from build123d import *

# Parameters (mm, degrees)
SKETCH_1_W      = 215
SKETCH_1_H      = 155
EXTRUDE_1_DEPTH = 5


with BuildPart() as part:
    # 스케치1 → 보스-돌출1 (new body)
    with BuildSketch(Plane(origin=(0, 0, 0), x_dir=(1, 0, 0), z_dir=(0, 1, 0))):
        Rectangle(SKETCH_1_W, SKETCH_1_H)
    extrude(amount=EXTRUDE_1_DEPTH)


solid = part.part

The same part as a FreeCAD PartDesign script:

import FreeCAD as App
import Part
import Sketcher

V = App.Vector
Q = App.Units.Quantity


def add_polygon(sketch, points):
    """Adds a closed chain of lines whose ends are joined by coincident constraints."""
    first, n = sketch.GeometryCount, len(points)
    for a, b in zip(points, points[1:] + points[:1]):
        sketch.addGeometry(Part.LineSegment(App.Vector(*a, 0), App.Vector(*b, 0)), False)
    for i in range(n):
        sketch.addConstraint(Sketcher.Constraint("Coincident", first + i, 2, first + (i + 1) % n, 1))

doc = App.newDocument("Part")
body = doc.addObject("PartDesign::Body", "Body")

# Sketch on XZ plane
sketch1 = body.newObject("Sketcher::SketchObject", "Sketch")
sketch1.AttachmentSupport = (doc.getObject("XZ_Plane"), [""])
sketch1.MapMode = "FlatFace"
add_polygon(sketch1, [(-108, -78), (-108, 78), (108, 78), (108, -78)])  # lines 0-3
sketch1.addConstraint([
    Sketcher.Constraint("Vertical", 0),
    Sketcher.Constraint("Horizontal", 1),
    Sketcher.Constraint("Vertical", 2),
    Sketcher.Constraint("Horizontal", 3),
    Sketcher.Constraint("Symmetric", 0, 2, 2, 2, -1, 1),
    Sketcher.Constraint("DistanceX", 1, 1, 1, 2, Q("215 mm")),
    Sketcher.Constraint("DistanceY", 0, 1, 0, 2, Q("155 mm")),
])
pad1 = body.newObject("PartDesign::Pad", "Pad")
pad1.Profile = sketch1
pad1.Length = 5
pad1.Reversed = True

doc.recompute()
